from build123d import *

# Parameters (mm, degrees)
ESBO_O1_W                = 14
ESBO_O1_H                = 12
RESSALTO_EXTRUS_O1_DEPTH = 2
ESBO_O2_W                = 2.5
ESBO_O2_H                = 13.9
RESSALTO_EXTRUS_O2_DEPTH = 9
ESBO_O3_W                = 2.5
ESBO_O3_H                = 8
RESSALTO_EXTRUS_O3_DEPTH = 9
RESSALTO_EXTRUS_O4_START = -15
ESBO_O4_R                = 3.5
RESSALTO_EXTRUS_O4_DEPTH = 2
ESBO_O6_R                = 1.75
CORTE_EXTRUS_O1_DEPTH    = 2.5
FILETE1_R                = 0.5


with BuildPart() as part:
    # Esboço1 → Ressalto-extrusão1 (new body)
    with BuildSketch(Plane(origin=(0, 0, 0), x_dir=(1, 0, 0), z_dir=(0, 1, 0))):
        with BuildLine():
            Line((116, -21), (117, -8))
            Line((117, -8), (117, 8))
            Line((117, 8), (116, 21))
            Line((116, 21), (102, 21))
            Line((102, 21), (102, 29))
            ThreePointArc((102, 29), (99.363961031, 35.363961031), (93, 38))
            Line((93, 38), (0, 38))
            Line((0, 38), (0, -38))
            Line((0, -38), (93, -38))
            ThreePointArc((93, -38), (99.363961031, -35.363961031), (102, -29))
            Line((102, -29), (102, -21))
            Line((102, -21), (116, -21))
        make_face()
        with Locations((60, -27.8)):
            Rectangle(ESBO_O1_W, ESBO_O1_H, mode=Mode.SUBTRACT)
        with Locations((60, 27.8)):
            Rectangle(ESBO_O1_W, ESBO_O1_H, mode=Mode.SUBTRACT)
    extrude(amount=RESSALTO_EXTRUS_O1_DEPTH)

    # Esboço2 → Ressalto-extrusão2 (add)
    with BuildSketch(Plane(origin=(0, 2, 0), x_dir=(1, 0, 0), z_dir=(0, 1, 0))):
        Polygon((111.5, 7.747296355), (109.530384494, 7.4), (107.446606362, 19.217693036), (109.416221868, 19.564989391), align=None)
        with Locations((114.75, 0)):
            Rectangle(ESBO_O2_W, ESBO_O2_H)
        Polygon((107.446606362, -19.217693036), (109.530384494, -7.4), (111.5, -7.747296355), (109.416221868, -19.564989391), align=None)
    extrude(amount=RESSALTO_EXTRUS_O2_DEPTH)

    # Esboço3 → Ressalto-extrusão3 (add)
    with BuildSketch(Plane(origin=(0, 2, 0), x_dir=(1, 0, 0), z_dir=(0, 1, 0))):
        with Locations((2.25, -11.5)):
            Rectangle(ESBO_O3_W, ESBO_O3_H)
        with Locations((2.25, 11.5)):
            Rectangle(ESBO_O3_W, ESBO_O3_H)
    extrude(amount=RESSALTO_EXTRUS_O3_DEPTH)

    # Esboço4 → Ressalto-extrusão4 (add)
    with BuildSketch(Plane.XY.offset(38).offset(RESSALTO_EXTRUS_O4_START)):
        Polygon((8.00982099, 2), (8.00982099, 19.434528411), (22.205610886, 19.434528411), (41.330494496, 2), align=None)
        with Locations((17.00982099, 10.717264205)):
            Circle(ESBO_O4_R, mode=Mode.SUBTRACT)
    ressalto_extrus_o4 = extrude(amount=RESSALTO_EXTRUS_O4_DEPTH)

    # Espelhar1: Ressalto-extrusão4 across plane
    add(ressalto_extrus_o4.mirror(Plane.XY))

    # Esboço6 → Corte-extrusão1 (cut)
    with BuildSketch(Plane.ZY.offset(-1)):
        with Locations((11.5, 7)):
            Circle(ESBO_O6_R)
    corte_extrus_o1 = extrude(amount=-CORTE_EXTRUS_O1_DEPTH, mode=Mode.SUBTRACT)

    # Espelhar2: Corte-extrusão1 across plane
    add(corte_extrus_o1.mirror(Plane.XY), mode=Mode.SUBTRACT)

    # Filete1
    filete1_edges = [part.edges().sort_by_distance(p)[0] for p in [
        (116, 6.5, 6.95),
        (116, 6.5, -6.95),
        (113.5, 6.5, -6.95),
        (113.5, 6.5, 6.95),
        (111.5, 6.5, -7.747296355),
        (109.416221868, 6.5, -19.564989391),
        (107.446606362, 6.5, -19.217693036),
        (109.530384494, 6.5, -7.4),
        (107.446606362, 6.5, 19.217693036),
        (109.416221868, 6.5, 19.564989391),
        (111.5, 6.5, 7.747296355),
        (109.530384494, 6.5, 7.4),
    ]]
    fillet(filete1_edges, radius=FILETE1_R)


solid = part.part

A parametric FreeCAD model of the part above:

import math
import FreeCAD as App
import Part
import Sketcher
Q = App.Units.Quantity


def edges_at(feature, points):
    """Names of the edges that pass closest to the given points."""
    edges = feature.Shape.Edges
    near = lambda p: min(range(len(edges)), key=lambda i: edges[i].distToShape(Part.Vertex(*p))[0])
    return sorted({f"Edge{near(p) + 1}" for p in points})


def add_polygon(sketch, points):
    """Adds a closed chain of lines whose ends are joined by coincident constraints."""
    first, n = sketch.GeometryCount, len(points)
    for a, b in zip(points, points[1:] + points[:1]):
        sketch.addGeometry(Part.LineSegment(App.Vector(*a, 0), App.Vector(*b, 0)), False)
    for i in range(n):
        sketch.addConstraint(Sketcher.Constraint("Coincident", first + i, 2, first + (i + 1) % n, 1))

doc = App.newDocument("Part")
body = doc.addObject("PartDesign::Body", "Body")

# Sketch on XZ plane
sketch1 = doc.addObject("Sketcher::SketchObject", "Sketch")
body.addObject(sketch1)
sketch1.AttachmentSupport = (doc.XZ_Plane, [""])
sketch1.MapMode = "FlatFace"
sketch1.addGeometry(Part.LineSegment(App.Vector(116, 21, 0), App.Vector(117, 8, 0)), False)  # 0
sketch1.addGeometry(Part.LineSegment(App.Vector(117, 8, 0), App.Vector(117, -8, 0)), False)  # 1
sketch1.addGeometry(Part.LineSegment(App.Vector(117, -8, 0), App.Vector(116, -21, 0)), False)  # 2
sketch1.addGeometry(Part.LineSegment(App.Vector(116, -21, 0), App.Vector(102, -21, 0)), False)  # 3
sketch1.addGeometry(Part.LineSegment(App.Vector(102, -21, 0), App.Vector(102, -29, 0)), False)  # 4
sketch1.addGeometry(Part.ArcOfCircle(Part.Circle(App.Vector(93, -29, 0), App.Vector(0, 0, 1), 9), math.radians(-90), math.radians(0)), False)  # 5
sketch1.addGeometry(Part.LineSegment(App.Vector(93, -38, 0), App.Vector(0, -38, 0)), False)  # 6
sketch1.addGeometry(Part.LineSegment(App.Vector(0, -38, 0), App.Vector(0, 38, 0)), False)  # 7
sketch1.addGeometry(Part.LineSegment(App.Vector(0, 38, 0), App.Vector(93, 38, 0)), False)  # 8
sketch1.addGeometry(Part.ArcOfCircle(Part.Circle(App.Vector(93, 29, 0), App.Vector(0, 0, 1), 9), math.radians(0), math.radians(90)), False)  # 9
sketch1.addGeometry(Part.LineSegment(App.Vector(102, 29, 0), App.Vector(102, 21, 0)), False)  # 10
sketch1.addGeometry(Part.LineSegment(App.Vector(102, 21, 0), App.Vector(116, 21, 0)), False)  # 11
add_polygon(sketch1, [(67, 34), (53, 34), (53, 22), (67, 22)])  # lines 12-15
add_polygon(sketch1, [(67, -22), (53, -22), (53, -34), (67, -34)])  # lines 16-19
sketch1.addConstraint([
    Sketcher.Constraint("Coincident", 0, 2, 1, 1),
    Sketcher.Constraint("Coincident", 1, 2, 2, 1),
    Sketcher.Constraint("Coincident", 2, 2, 3, 1),
    Sketcher.Constraint("Coincident", 3, 2, 4, 1),
    Sketcher.Constraint("Tangent", 4, 2, 5, 2),
    Sketcher.Constraint("Tangent", 5, 1, 6, 1),
    Sketcher.Constraint("Coincident", 6, 2, 7, 1),
    Sketcher.Constraint("Coincident", 7, 2, 8, 1),
    Sketcher.Constraint("Tangent", 8, 2, 9, 2),
    Sketcher.Constraint("Tangent", 9, 1, 10, 1),
    Sketcher.Constraint("Coincident", 10, 2, 11, 1),
    Sketcher.Constraint("Coincident", 11, 2, 0, 1),
    Sketcher.Constraint("Vertical", 1),
    Sketcher.Constraint("Horizontal", 3),
    Sketcher.Constraint("Vertical", 4),
    Sketcher.Constraint("Horizontal", 6),
    Sketcher.Constraint("Vertical", 7),
    Sketcher.Constraint("Horizontal", 8),
    Sketcher.Constraint("Vertical", 10),
    Sketcher.Constraint("Horizontal", 11),
    Sketcher.Constraint("Horizontal", 12),
    Sketcher.Constraint("Vertical", 13),
    Sketcher.Constraint("Horizontal", 14),
    Sketcher.Constraint("Vertical", 15),
    Sketcher.Constraint("Horizontal", 16),
    Sketcher.Constraint("Vertical", 17),
    Sketcher.Constraint("Horizontal", 18),
    Sketcher.Constraint("Vertical", 19),
    Sketcher.Constraint("Equal", 5, 9),
    Sketcher.Constraint("Symmetric", 6, 2, 7, 2, -1, 1),
    Sketcher.Constraint("Symmetric", 3, 2, 10, 2, -1),
    Sketcher.Constraint("Symmetric", 13, 2, 16, 2, -1),
    Sketcher.Constraint("Symmetric", 15, 2, 18, 2, -1),
    Sketcher.Constraint("Vertical", 2, 2, 11, 2),
    Sketcher.Constraint("Equal", 11, 12),
    Sketcher.Constraint("Equal", 0, 2),
    Sketcher.Constraint("Radius", 5, 9.0),
    Sketcher.Constraint("DistanceX", 3, 2, 3, 1, 14.0),
    Sketcher.Constraint("DistanceX", 6, 2, 6, 1, 93.0),
    Sketcher.Constraint("DistanceY", 1, 2, 1, 1, 16.0),
    Sketcher.Constraint("DistanceY", 4, 2, 4, 1, 8.0),
    Sketcher.Constraint("DistanceY", 7, 1, 7, 2, 76.0),
    Sketcher.Constraint("DistanceY", 13, 2, 13, 1, 12.0),
    Sketcher.Constraint("DistanceX", -1, 1, 0, 2, 117.0),
    Sketcher.Constraint("DistanceX", -1, 1, 12, 2, 53.0),
    Sketcher.Constraint("DistanceY", -1, 1, 12, 2, 33.8),
])
pad1 = doc.addObject("PartDesign::Pad", "Pad")
body.addObject(pad1)
pad1.Profile = sketch1
pad1.Length = 2
pad1.Reversed = True

# Sketch on XZ plane
sketch2 = doc.addObject("Sketcher::SketchObject", "Sketch001")
body.addObject(sketch2)
sketch2.AttachmentSupport = (doc.XZ_Plane, [""])
sketch2.MapMode = "FlatFace"
sketch2.AttachmentOffset = App.Placement(App.Vector(0, 0, -2), App.Rotation())
add_polygon(sketch2, [(109.5, -7.4), (111.5, -7.7), (109.4, -19.6), (107.4, -19.2)])  # lines 0-3
add_polygon(sketch2, [(113.5, -7), (113.5, 7), (116, 7), (116, -7)])  # lines 4-7
add_polygon(sketch2, [(109.5, 7.4), (107.4, 19.2), (109.4, 19.6), (111.5, 7.7)])  # lines 8-11
sketch2.addConstraint([
    Sketcher.Constraint("Vertical", 4),
    Sketcher.Constraint("Horizontal", 5),
    Sketcher.Constraint("Vertical", 6),
    Sketcher.Constraint("Horizontal", 7),
    Sketcher.Constraint("Symmetric", 2, 2, 8, 2, -1),
    Sketcher.Constraint("Symmetric", 1, 2, 9, 2, -1),
    Sketcher.Constraint("Symmetric", 0, 2, 10, 2, -1),
    Sketcher.Constraint("Symmetric", 3, 2, 11, 2, -1),
    Sketcher.Constraint("Perpendicular", 0, 1),
    Sketcher.Constraint("Perpendicular", 1, 2),
    Sketcher.Constraint("Perpendicular", 2, 3),
    Sketcher.Constraint("Angle", 0, Q("-10 deg")),
    Sketcher.Constraint("Distance", 0, 2.0),
    Sketcher.Constraint("Distance", 1, 12.0),
    Sketcher.Constraint("DistanceX", 5, 1, 5, 2, 2.5),
    Sketcher.Constraint("DistanceY", 4, 1, 4, 2, 13.9),
    Sketcher.Constraint("DistanceX", -1, 1, 5, 2, 116.0),
    Sketcher.Constraint("DistanceX", 0, 2, 4, 2, 2.0),
    Sketcher.Constraint("DistanceY", 3, 2, -1, 1, 7.4),
    Sketcher.Constraint("DistanceY", -1, 1, 4, 2, 6.95),
])
pad2 = doc.addObject("PartDesign::Pad", "Pad001")
body.addObject(pad2)
pad2.Profile = sketch2
pad2.Length = 9
pad2.Reversed = True

# Sketch on XZ plane
sketch3 = doc.addObject("Sketcher::SketchObject", "Sketch002")
body.addObject(sketch3)
sketch3.AttachmentSupport = (doc.XZ_Plane, [""])
sketch3.MapMode = "FlatFace"
sketch3.AttachmentOffset = App.Placement(App.Vector(0, 0, -2), App.Rotation())
add_polygon(sketch3, [(1, 7.5), (1, 15.5), (3.5, 15.5), (3.5, 7.5)])  # lines 0-3
add_polygon(sketch3, [(1, -15.5), (1, -7.5), (3.5, -7.5), (3.5, -15.5)])  # lines 4-7
sketch3.addConstraint([
    Sketcher.Constraint("Vertical", 0),
    Sketcher.Constraint("Horizontal", 1),
    Sketcher.Constraint("Vertical", 2),
    Sketcher.Constraint("Horizontal", 3),
    Sketcher.Constraint("Vertical", 4),
    Sketcher.Constraint("Horizontal", 5),
    Sketcher.Constraint("Vertical", 6),
    Sketcher.Constraint("Horizontal", 7),
    Sketcher.Constraint("Symmetric", 3, 2, 4, 2, -1),
    Sketcher.Constraint("Symmetric", 1, 2, 6, 2, -1),
    Sketcher.Constraint("DistanceY", 0, 1, 0, 2, 8.0),
    Sketcher.Constraint("DistanceX", 1, 1, 1, 2, 2.5),
    Sketcher.Constraint("DistanceX", -1, 1, 0, 2, 1.0),
    Sketcher.Constraint("DistanceY", 4, 2, 3, 2, 15.0),
])
pad3 = doc.addObject("PartDesign::Pad", "Pad002")
body.addObject(pad3)
pad3.Profile = sketch3
pad3.Length = 9
pad3.Reversed = True

# Sketch on XY plane
sketch4 = doc.addObject("Sketcher::SketchObject", "Sketch003")
body.addObject(sketch4)
sketch4.AttachmentSupport = (doc.XY_Plane, [""])
sketch4.MapMode = "FlatFace"
sketch4.AttachmentOffset = App.Placement(App.Vector(0, 0, 23), App.Rotation())
add_polygon(sketch4, [(8, 19.4), (8, 2), (41.3, 2), (22.2, 19.4)])  # lines 0-3
sketch4.addGeometry(Part.Circle(App.Vector(17, 10.7, 0), App.Vector(0, 0, 1), 3.5), False)  # 4
sketch4.addConstraint([
    Sketcher.Constraint("Vertical", 0),
    Sketcher.Constraint("Horizontal", 1),
    Sketcher.Constraint("Horizontal", 3),
    Sketcher.Constraint("Diameter", 4, 7.0),
    Sketcher.Constraint("DistanceY", -1, 1, 0, 2, 2.0),
    Sketcher.Constraint("DistanceX", 0, 2, 4, 3, 9.0),
    Sketcher.Constraint("DistanceX", 3, 2, 3, 1, 14.19579),
    Sketcher.Constraint("DistanceY", 0, 2, 0, 1, 17.434528),
    Sketcher.Constraint("DistanceX", 1, 1, 1, 2, 33.320674),
    Sketcher.Constraint("DistanceX", -1, 1, 4, 3, 17.009821),
    Sketcher.Constraint("DistanceY", -1, 1, 4, 3, 10.717264),
])
pad4 = doc.addObject("PartDesign::Pad", "Pad003")
body.addObject(pad4)
pad4.Profile = sketch4
pad4.Length = 2
doc.recompute()

mirrored = doc.addObject("PartDesign::Mirrored", "Mirrored")
body.addObject(mirrored)
mirrored.Originals = [pad4]
mirrored.MirrorPlane = (doc.XY_Plane, [""])
body.Tip = mirrored

# Sketch on YZ plane
sketch5 = doc.addObject("Sketcher::SketchObject", "Sketch004")
body.addObject(sketch5)
sketch5.AttachmentSupport = (doc.YZ_Plane, [""])
sketch5.MapMode = "FlatFace"
sketch5.AttachmentOffset = App.Placement(App.Vector(0, 0, 1), App.Rotation())
sketch5.addGeometry(Part.Circle(App.Vector(7, 11.5, 0), App.Vector(0, 0, 1), 1.8), False)
sketch5.addConstraint([
    Sketcher.Constraint("Diameter", 0, 3.5),
    Sketcher.Constraint("DistanceX", -1, 1, 0, 3, 7.0),
    Sketcher.Constraint("DistanceY", -1, 1, 0, 3, 11.5),
])
pocket1 = doc.addObject("PartDesign::Pocket", "Pocket")
body.addObject(pocket1)
pocket1.Profile = sketch5
pocket1.Length = 2.5
pocket1.Reversed = True
doc.recompute()

mirrored2 = doc.addObject("PartDesign::Mirrored", "Mirrored001")
body.addObject(mirrored2)
mirrored2.Originals = [pocket1]
mirrored2.MirrorPlane = (doc.XY_Plane, [""])
body.Tip = mirrored2
doc.recompute()

fillet = doc.addObject("PartDesign::Fillet", "Fillet")
body.addObject(fillet)
fillet.Base = (mirrored2, edges_at(mirrored2, [
    (116, 6.5, 6.95),
    (116, 6.5, -6.95),
    (113.5, 6.5, -6.95),
    (113.5, 6.5, 6.95),
    (111.5, 6.5, -7.747),
    (109.416, 6.5, -19.565),
    (107.447, 6.5, -19.218),
    (109.53, 6.5, -7.4),
    (107.447, 6.5, 19.218),
    (109.416, 6.5, 19.565),
    (111.5, 6.5, 7.747),
    (109.53, 6.5, 7.4),
]))
fillet.Radius = 0.5

doc.recompute()
